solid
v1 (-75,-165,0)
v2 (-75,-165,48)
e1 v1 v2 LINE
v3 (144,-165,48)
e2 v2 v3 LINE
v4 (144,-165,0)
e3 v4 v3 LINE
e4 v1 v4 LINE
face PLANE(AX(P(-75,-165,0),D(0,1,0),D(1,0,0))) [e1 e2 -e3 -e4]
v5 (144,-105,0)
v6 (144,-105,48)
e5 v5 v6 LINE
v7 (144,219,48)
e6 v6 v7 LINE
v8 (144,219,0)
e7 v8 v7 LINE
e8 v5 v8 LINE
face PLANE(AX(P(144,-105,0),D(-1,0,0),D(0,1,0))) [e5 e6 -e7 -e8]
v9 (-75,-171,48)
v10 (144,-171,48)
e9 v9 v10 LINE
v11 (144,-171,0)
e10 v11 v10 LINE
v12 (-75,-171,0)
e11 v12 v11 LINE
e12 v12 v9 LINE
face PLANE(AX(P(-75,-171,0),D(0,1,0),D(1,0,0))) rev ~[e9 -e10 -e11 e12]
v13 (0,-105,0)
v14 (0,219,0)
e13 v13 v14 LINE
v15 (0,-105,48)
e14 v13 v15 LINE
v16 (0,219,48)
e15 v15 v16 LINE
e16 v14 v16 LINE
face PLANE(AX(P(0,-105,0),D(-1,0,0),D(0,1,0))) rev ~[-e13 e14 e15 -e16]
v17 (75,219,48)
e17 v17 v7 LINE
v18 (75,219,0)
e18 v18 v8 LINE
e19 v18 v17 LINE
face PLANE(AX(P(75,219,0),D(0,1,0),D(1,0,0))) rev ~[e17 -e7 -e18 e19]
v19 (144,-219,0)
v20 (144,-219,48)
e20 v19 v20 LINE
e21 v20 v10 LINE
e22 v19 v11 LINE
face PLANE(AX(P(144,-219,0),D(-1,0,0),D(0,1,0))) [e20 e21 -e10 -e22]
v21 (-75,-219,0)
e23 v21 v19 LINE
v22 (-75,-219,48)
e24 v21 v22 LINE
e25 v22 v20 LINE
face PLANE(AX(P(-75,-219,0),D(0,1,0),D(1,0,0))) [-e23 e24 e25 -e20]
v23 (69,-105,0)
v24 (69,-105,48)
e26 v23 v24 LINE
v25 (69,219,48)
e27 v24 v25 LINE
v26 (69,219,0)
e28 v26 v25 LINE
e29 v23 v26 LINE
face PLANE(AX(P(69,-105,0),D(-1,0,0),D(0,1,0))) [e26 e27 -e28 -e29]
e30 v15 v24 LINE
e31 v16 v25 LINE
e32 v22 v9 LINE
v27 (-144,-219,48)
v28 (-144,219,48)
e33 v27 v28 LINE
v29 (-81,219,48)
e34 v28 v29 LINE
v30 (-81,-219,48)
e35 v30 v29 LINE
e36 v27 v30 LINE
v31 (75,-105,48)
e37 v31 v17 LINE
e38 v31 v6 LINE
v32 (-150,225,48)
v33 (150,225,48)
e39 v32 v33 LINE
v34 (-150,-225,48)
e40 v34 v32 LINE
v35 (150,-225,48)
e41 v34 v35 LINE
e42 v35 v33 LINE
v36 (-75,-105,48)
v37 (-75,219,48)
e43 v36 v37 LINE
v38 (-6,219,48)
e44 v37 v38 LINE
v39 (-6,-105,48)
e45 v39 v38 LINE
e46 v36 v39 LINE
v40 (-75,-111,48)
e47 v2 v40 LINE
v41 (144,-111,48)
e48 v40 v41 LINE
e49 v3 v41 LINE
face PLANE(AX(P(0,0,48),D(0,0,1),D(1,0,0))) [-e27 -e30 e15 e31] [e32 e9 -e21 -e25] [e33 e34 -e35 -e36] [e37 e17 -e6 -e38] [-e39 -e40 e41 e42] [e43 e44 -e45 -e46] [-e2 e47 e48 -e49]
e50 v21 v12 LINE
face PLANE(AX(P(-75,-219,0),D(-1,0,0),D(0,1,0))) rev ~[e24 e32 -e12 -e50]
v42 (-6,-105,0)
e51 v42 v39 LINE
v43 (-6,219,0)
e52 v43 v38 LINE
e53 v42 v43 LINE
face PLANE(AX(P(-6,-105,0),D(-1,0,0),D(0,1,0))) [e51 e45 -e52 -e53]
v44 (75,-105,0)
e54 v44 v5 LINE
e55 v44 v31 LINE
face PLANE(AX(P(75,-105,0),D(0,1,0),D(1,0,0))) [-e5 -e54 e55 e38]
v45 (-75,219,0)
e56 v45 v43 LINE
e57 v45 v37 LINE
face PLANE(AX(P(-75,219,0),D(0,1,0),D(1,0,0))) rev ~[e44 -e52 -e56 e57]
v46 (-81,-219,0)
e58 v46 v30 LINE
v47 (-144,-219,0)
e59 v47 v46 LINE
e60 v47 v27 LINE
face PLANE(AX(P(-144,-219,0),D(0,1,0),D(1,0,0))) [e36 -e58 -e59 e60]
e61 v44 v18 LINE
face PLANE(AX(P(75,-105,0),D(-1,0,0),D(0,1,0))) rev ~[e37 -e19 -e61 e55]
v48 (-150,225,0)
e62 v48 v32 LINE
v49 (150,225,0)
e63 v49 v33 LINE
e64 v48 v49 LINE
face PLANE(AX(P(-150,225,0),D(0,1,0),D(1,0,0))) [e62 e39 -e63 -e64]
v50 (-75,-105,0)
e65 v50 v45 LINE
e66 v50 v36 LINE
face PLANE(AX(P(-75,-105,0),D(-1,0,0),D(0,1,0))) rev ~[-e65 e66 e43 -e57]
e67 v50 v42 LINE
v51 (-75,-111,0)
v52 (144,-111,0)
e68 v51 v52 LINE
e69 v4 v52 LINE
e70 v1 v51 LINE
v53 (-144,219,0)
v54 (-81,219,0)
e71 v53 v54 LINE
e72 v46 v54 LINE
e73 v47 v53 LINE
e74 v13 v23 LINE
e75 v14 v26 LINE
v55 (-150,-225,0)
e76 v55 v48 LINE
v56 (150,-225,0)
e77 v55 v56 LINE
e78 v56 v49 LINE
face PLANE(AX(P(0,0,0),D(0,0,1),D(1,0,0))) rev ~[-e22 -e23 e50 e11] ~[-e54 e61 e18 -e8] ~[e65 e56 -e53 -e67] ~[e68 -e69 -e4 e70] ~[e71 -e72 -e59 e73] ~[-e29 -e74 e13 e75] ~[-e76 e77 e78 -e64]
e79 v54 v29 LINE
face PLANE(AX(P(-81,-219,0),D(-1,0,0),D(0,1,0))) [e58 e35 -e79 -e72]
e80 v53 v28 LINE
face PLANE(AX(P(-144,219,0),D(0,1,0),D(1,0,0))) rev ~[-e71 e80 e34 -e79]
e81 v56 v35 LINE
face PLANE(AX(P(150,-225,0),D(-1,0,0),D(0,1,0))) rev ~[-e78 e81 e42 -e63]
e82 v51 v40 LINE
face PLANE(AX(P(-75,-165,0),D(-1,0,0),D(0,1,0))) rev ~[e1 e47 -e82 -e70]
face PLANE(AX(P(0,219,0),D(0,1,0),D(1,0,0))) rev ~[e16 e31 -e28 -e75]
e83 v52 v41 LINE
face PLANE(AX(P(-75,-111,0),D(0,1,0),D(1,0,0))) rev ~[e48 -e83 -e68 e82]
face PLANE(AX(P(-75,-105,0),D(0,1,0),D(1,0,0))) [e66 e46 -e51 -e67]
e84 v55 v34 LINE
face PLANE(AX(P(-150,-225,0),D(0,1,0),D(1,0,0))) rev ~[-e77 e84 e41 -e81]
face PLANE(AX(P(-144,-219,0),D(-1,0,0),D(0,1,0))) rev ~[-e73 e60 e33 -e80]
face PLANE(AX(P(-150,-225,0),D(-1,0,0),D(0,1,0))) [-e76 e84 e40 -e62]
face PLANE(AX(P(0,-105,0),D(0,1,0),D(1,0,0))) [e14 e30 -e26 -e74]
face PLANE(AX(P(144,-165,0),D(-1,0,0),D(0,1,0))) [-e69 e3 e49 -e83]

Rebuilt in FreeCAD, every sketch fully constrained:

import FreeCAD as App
import Part
import Sketcher
Q = App.Units.Quantity

doc = App.newDocument("Part")
params = doc.addObject("Spreadsheet::Sheet", "Params")
for row, (alias, value) in enumerate([
    ("sketch1_width", "300 mm"),
    ("sketch1_width2", "219 mm"),
    ("sketch1_width3", "63 mm"),
    ("sketch1_width4", "69 mm"),
    ("sketch1_height", "450 mm"),
    ("pad1_length", "48 mm"),
], start=1):
    params.set(f"A{row}", alias)
    params.set(f"B{row}", "=" + value)
    params.setAlias(f"B{row}", alias)

body = doc.addObject("PartDesign::Body", "Body")

sketch1 = body.newObject("Sketcher::SketchObject", "Sketch")
sketch1.AttachmentSupport = (doc.getObject("XY_Plane"), [""])
sketch1.MapMode = "FlatFace"
sketch1.addGeometry(Part.LineSegment(App.Vector(-150, 225, 0), App.Vector(-150, -225, 0)), False)
sketch1.addGeometry(Part.LineSegment(App.Vector(-150, -225, 0), App.Vector(150, -225, 0)), False)
sketch1.addGeometry(Part.LineSegment(App.Vector(150, -225, 0), App.Vector(150, 225, 0)), False)
sketch1.addGeometry(Part.LineSegment(App.Vector(150, 225, 0), App.Vector(-150, 225, 0)), False)
sketch1.addGeometry(Part.LineSegment(App.Vector(144, -219, 0), App.Vector(-75, -219, 0)), False)
sketch1.addGeometry(Part.LineSegment(App.Vector(-75, -219, 0), App.Vector(-75, -171, 0)), False)
sketch1.addGeometry(Part.LineSegment(App.Vector(-75, -171, 0), App.Vector(144, -171, 0)), False)
sketch1.addGeometry(Part.LineSegment(App.Vector(144, -171, 0), App.Vector(144, -219, 0)), False)
sketch1.addGeometry(Part.LineSegment(App.Vector(144, -165, 0), App.Vector(-75, -165, 0)), False)
sketch1.addGeometry(Part.LineSegment(App.Vector(-75, -165, 0), App.Vector(-75, -111, 0)), False)
sketch1.addGeometry(Part.LineSegment(App.Vector(-75, -111, 0), App.Vector(144, -111, 0)), False)
sketch1.addGeometry(Part.LineSegment(App.Vector(144, -111, 0), App.Vector(144, -165, 0)), False)
sketch1.addGeometry(Part.LineSegment(App.Vector(-81, -219, 0), App.Vector(-144, -219, 0)), False)
sketch1.addGeometry(Part.LineSegment(App.Vector(-144, -219, 0), App.Vector(-144, 219, 0)), False)
sketch1.addGeometry(Part.LineSegment(App.Vector(-144, 219, 0), App.Vector(-81, 219, 0)), False)
sketch1.addGeometry(Part.LineSegment(App.Vector(-81, 219, 0), App.Vector(-81, -219, 0)), False)
sketch1.addGeometry(Part.LineSegment(App.Vector(-6, -105, 0), App.Vector(-75, -105, 0)), False)
sketch1.addGeometry(Part.LineSegment(App.Vector(-75, -105, 0), App.Vector(-75, 219, 0)), False)
sketch1.addGeometry(Part.LineSegment(App.Vector(-75, 219, 0), App.Vector(-6, 219, 0)), False)
sketch1.addGeometry(Part.LineSegment(App.Vector(-6, 219, 0), App.Vector(-6, -105, 0)), False)
sketch1.addGeometry(Part.LineSegment(App.Vector(69, -105, 0), App.Vector(0, -105, 0)), False)
sketch1.addGeometry(Part.LineSegment(App.Vector(0, -105, 0), App.Vector(0, 219, 0)), False)
sketch1.addGeometry(Part.LineSegment(App.Vector(0, 219, 0), App.Vector(69, 219, 0)), False)
sketch1.addGeometry(Part.LineSegment(App.Vector(69, 219, 0), App.Vector(69, -105, 0)), False)
sketch1.addGeometry(Part.LineSegment(App.Vector(144, -105, 0), App.Vector(75, -105, 0)), False)
sketch1.addGeometry(Part.LineSegment(App.Vector(75, -105, 0), App.Vector(75, 219, 0)), False)
sketch1.addGeometry(Part.LineSegment(App.Vector(75, 219, 0), App.Vector(144, 219, 0)), False)
sketch1.addGeometry(Part.LineSegment(App.Vector(144, 219, 0), App.Vector(144, -105, 0)), False)
sketch1.addConstraint(Sketcher.Constraint("Coincident", 0, 2, 1, 1))
sketch1.addConstraint(Sketcher.Constraint("Coincident", 1, 2, 2, 1))
sketch1.addConstraint(Sketcher.Constraint("Coincident", 2, 2, 3, 1))
sketch1.addConstraint(Sketcher.Constraint("Coincident", 3, 2, 0, 1))
sketch1.addConstraint(Sketcher.Constraint("Coincident", 4, 2, 5, 1))
sketch1.addConstraint(Sketcher.Constraint("Coincident", 5, 2, 6, 1))
sketch1.addConstraint(Sketcher.Constraint("Coincident", 6, 2, 7, 1))
sketch1.addConstraint(Sketcher.Constraint("Coincident", 7, 2, 4, 1))
sketch1.addConstraint(Sketcher.Constraint("Coincident", 8, 2, 9, 1))
sketch1.addConstraint(Sketcher.Constraint("Coincident", 9, 2, 10, 1))
sketch1.addConstraint(Sketcher.Constraint("Coincident", 10, 2, 11, 1))
sketch1.addConstraint(Sketcher.Constraint("Coincident", 11, 2, 8, 1))
sketch1.addConstraint(Sketcher.Constraint("Coincident", 12, 2, 13, 1))
sketch1.addConstraint(Sketcher.Constraint("Coincident", 13, 2, 14, 1))
sketch1.addConstraint(Sketcher.Constraint("Coincident", 14, 2, 15, 1))
sketch1.addConstraint(Sketcher.Constraint("Coincident", 15, 2, 12, 1))
sketch1.addConstraint(Sketcher.Constraint("Coincident", 16, 2, 17, 1))
sketch1.addConstraint(Sketcher.Constraint("Coincident", 17, 2, 18, 1))
sketch1.addConstraint(Sketcher.Constraint("Coincident", 18, 2, 19, 1))
sketch1.addConstraint(Sketcher.Constraint("Coincident", 19, 2, 16, 1))
sketch1.addConstraint(Sketcher.Constraint("Coincident", 20, 2, 21, 1))
sketch1.addConstraint(Sketcher.Constraint("Coincident", 21, 2, 22, 1))
sketch1.addConstraint(Sketcher.Constraint("Coincident", 22, 2, 23, 1))
sketch1.addConstraint(Sketcher.Constraint("Coincident", 23, 2, 20, 1))
sketch1.addConstraint(Sketcher.Constraint("Coincident", 24, 2, 25, 1))
sketch1.addConstraint(Sketcher.Constraint("Coincident", 25, 2, 26, 1))
sketch1.addConstraint(Sketcher.Constraint("Coincident", 26, 2, 27, 1))
sketch1.addConstraint(Sketcher.Constraint("Coincident", 27, 2, 24, 1))
sketch1.addConstraint(Sketcher.Constraint("Vertical", 0))
sketch1.addConstraint(Sketcher.Constraint("Horizontal", 1))
sketch1.addConstraint(Sketcher.Constraint("Vertical", 2))
sketch1.addConstraint(Sketcher.Constraint("Horizontal", 3))
sketch1.addConstraint(Sketcher.Constraint("Horizontal", 4))
sketch1.addConstraint(Sketcher.Constraint("Vertical", 5))
sketch1.addConstraint(Sketcher.Constraint("Horizontal", 6))
sketch1.addConstraint(Sketcher.Constraint("Vertical", 7))
sketch1.addConstraint(Sketcher.Constraint("Horizontal", 8))
sketch1.addConstraint(Sketcher.Constraint("Vertical", 9))
sketch1.addConstraint(Sketcher.Constraint("Horizontal", 10))
sketch1.addConstraint(Sketcher.Constraint("Vertical", 11))
sketch1.addConstraint(Sketcher.Constraint("Horizontal", 12))
sketch1.addConstraint(Sketcher.Constraint("Vertical", 13))
sketch1.addConstraint(Sketcher.Constraint("Horizontal", 14))
sketch1.addConstraint(Sketcher.Constraint("Vertical", 15))
sketch1.addConstraint(Sketcher.Constraint("Horizontal", 16))
sketch1.addConstraint(Sketcher.Constraint("Vertical", 17))
sketch1.addConstraint(Sketcher.Constraint("Horizontal", 18))
sketch1.addConstraint(Sketcher.Constraint("Vertical", 19))
sketch1.addConstraint(Sketcher.Constraint("Horizontal", 20))
sketch1.addConstraint(Sketcher.Constraint("Vertical", 21))
sketch1.addConstraint(Sketcher.Constraint("Horizontal", 22))
sketch1.addConstraint(Sketcher.Constraint("Vertical", 23))
sketch1.addConstraint(Sketcher.Constraint("Horizontal", 24))
sketch1.addConstraint(Sketcher.Constraint("Vertical", 25))
sketch1.addConstraint(Sketcher.Constraint("Horizontal", 26))
sketch1.addConstraint(Sketcher.Constraint("Vertical", 27))
sketch1.addConstraint(Sketcher.Constraint("Symmetric", 0, 2, 2, 2, -1, 1))
sketch1.addConstraint(Sketcher.Constraint("Symmetric", 7, 2, 13, 2, -1, 1))
sketch1.addConstraint(Sketcher.Constraint("Symmetric", 4, 2, 25, 2, -1, 1))
sketch1.addConstraint(Sketcher.Constraint("Symmetric", 12, 2, 26, 2, -1, 1))
sketch1.addConstraint(Sketcher.Constraint("Symmetric", 16, 2, 24, 2, -2))
sketch1.addConstraint(Sketcher.Constraint("PointOnObject", 20, 2, -2))
sketch1.addConstraint(Sketcher.Constraint("Horizontal", 14, 2, 17, 2))
sketch1.addConstraint(Sketcher.Constraint("Horizontal", 19, 2, 20, 2))
sketch1.addConstraint(Sketcher.Constraint("Horizontal", 18, 2, 21, 2))
sketch1.addConstraint(Sketcher.Constraint("Vertical", 5, 2, 8, 2))
sketch1.addConstraint(Sketcher.Constraint("Vertical", 7, 2, 10, 2))
sketch1.addConstraint(Sketcher.Constraint("Equal", 18, 20))
sketch1.addConstraint(Sketcher.Constraint("Equal", 22, 24))
sketch1.addConstraint(Sketcher.Constraint("DistanceX", 1, 1, 1, 2, Q("300 mm")))
sketch1.addConstraint(Sketcher.Constraint("DistanceX", 4, 2, 4, 1, Q("219 mm")))
sketch1.addConstraint(Sketcher.Constraint("DistanceX", 12, 2, 12, 1, Q("63 mm")))
sketch1.addConstraint(Sketcher.Constraint("DistanceX", 16, 2, 16, 1, Q("69 mm")))
sketch1.addConstraint(Sketcher.Constraint("DistanceY", 0, 2, 0, 1, Q("450 mm")))
sketch1.addConstraint(Sketcher.Constraint("DistanceY", 5, 1, 5, 2, Q("48 mm")))
sketch1.addConstraint(Sketcher.Constraint("DistanceY", 9, 1, 9, 2, Q("54 mm")))
sketch1.addConstraint(Sketcher.Constraint("DistanceY", 13, 1, 13, 2, Q("438 mm")))
sketch1.addConstraint(Sketcher.Constraint("DistanceY", 17, 1, 17, 2, Q("324 mm")))
sketch1.addConstraint(Sketcher.Constraint("DistanceY", 8, 2, -1, 1, Q("165 mm")))
sketch1.setExpression("Constraints[69]", "Params.sketch1_width")
sketch1.setExpression("Constraints[70]", "Params.sketch1_width2")
sketch1.setExpression("Constraints[71]", "Params.sketch1_width3")
sketch1.setExpression("Constraints[72]", "Params.sketch1_width4")
sketch1.setExpression("Constraints[73]", "Params.sketch1_height")
pad1 = body.newObject("PartDesign::Pad", "Pad")
pad1.Profile = sketch1
pad1.setExpression("Length", "Params.pad1_length")

doc.recompute()
